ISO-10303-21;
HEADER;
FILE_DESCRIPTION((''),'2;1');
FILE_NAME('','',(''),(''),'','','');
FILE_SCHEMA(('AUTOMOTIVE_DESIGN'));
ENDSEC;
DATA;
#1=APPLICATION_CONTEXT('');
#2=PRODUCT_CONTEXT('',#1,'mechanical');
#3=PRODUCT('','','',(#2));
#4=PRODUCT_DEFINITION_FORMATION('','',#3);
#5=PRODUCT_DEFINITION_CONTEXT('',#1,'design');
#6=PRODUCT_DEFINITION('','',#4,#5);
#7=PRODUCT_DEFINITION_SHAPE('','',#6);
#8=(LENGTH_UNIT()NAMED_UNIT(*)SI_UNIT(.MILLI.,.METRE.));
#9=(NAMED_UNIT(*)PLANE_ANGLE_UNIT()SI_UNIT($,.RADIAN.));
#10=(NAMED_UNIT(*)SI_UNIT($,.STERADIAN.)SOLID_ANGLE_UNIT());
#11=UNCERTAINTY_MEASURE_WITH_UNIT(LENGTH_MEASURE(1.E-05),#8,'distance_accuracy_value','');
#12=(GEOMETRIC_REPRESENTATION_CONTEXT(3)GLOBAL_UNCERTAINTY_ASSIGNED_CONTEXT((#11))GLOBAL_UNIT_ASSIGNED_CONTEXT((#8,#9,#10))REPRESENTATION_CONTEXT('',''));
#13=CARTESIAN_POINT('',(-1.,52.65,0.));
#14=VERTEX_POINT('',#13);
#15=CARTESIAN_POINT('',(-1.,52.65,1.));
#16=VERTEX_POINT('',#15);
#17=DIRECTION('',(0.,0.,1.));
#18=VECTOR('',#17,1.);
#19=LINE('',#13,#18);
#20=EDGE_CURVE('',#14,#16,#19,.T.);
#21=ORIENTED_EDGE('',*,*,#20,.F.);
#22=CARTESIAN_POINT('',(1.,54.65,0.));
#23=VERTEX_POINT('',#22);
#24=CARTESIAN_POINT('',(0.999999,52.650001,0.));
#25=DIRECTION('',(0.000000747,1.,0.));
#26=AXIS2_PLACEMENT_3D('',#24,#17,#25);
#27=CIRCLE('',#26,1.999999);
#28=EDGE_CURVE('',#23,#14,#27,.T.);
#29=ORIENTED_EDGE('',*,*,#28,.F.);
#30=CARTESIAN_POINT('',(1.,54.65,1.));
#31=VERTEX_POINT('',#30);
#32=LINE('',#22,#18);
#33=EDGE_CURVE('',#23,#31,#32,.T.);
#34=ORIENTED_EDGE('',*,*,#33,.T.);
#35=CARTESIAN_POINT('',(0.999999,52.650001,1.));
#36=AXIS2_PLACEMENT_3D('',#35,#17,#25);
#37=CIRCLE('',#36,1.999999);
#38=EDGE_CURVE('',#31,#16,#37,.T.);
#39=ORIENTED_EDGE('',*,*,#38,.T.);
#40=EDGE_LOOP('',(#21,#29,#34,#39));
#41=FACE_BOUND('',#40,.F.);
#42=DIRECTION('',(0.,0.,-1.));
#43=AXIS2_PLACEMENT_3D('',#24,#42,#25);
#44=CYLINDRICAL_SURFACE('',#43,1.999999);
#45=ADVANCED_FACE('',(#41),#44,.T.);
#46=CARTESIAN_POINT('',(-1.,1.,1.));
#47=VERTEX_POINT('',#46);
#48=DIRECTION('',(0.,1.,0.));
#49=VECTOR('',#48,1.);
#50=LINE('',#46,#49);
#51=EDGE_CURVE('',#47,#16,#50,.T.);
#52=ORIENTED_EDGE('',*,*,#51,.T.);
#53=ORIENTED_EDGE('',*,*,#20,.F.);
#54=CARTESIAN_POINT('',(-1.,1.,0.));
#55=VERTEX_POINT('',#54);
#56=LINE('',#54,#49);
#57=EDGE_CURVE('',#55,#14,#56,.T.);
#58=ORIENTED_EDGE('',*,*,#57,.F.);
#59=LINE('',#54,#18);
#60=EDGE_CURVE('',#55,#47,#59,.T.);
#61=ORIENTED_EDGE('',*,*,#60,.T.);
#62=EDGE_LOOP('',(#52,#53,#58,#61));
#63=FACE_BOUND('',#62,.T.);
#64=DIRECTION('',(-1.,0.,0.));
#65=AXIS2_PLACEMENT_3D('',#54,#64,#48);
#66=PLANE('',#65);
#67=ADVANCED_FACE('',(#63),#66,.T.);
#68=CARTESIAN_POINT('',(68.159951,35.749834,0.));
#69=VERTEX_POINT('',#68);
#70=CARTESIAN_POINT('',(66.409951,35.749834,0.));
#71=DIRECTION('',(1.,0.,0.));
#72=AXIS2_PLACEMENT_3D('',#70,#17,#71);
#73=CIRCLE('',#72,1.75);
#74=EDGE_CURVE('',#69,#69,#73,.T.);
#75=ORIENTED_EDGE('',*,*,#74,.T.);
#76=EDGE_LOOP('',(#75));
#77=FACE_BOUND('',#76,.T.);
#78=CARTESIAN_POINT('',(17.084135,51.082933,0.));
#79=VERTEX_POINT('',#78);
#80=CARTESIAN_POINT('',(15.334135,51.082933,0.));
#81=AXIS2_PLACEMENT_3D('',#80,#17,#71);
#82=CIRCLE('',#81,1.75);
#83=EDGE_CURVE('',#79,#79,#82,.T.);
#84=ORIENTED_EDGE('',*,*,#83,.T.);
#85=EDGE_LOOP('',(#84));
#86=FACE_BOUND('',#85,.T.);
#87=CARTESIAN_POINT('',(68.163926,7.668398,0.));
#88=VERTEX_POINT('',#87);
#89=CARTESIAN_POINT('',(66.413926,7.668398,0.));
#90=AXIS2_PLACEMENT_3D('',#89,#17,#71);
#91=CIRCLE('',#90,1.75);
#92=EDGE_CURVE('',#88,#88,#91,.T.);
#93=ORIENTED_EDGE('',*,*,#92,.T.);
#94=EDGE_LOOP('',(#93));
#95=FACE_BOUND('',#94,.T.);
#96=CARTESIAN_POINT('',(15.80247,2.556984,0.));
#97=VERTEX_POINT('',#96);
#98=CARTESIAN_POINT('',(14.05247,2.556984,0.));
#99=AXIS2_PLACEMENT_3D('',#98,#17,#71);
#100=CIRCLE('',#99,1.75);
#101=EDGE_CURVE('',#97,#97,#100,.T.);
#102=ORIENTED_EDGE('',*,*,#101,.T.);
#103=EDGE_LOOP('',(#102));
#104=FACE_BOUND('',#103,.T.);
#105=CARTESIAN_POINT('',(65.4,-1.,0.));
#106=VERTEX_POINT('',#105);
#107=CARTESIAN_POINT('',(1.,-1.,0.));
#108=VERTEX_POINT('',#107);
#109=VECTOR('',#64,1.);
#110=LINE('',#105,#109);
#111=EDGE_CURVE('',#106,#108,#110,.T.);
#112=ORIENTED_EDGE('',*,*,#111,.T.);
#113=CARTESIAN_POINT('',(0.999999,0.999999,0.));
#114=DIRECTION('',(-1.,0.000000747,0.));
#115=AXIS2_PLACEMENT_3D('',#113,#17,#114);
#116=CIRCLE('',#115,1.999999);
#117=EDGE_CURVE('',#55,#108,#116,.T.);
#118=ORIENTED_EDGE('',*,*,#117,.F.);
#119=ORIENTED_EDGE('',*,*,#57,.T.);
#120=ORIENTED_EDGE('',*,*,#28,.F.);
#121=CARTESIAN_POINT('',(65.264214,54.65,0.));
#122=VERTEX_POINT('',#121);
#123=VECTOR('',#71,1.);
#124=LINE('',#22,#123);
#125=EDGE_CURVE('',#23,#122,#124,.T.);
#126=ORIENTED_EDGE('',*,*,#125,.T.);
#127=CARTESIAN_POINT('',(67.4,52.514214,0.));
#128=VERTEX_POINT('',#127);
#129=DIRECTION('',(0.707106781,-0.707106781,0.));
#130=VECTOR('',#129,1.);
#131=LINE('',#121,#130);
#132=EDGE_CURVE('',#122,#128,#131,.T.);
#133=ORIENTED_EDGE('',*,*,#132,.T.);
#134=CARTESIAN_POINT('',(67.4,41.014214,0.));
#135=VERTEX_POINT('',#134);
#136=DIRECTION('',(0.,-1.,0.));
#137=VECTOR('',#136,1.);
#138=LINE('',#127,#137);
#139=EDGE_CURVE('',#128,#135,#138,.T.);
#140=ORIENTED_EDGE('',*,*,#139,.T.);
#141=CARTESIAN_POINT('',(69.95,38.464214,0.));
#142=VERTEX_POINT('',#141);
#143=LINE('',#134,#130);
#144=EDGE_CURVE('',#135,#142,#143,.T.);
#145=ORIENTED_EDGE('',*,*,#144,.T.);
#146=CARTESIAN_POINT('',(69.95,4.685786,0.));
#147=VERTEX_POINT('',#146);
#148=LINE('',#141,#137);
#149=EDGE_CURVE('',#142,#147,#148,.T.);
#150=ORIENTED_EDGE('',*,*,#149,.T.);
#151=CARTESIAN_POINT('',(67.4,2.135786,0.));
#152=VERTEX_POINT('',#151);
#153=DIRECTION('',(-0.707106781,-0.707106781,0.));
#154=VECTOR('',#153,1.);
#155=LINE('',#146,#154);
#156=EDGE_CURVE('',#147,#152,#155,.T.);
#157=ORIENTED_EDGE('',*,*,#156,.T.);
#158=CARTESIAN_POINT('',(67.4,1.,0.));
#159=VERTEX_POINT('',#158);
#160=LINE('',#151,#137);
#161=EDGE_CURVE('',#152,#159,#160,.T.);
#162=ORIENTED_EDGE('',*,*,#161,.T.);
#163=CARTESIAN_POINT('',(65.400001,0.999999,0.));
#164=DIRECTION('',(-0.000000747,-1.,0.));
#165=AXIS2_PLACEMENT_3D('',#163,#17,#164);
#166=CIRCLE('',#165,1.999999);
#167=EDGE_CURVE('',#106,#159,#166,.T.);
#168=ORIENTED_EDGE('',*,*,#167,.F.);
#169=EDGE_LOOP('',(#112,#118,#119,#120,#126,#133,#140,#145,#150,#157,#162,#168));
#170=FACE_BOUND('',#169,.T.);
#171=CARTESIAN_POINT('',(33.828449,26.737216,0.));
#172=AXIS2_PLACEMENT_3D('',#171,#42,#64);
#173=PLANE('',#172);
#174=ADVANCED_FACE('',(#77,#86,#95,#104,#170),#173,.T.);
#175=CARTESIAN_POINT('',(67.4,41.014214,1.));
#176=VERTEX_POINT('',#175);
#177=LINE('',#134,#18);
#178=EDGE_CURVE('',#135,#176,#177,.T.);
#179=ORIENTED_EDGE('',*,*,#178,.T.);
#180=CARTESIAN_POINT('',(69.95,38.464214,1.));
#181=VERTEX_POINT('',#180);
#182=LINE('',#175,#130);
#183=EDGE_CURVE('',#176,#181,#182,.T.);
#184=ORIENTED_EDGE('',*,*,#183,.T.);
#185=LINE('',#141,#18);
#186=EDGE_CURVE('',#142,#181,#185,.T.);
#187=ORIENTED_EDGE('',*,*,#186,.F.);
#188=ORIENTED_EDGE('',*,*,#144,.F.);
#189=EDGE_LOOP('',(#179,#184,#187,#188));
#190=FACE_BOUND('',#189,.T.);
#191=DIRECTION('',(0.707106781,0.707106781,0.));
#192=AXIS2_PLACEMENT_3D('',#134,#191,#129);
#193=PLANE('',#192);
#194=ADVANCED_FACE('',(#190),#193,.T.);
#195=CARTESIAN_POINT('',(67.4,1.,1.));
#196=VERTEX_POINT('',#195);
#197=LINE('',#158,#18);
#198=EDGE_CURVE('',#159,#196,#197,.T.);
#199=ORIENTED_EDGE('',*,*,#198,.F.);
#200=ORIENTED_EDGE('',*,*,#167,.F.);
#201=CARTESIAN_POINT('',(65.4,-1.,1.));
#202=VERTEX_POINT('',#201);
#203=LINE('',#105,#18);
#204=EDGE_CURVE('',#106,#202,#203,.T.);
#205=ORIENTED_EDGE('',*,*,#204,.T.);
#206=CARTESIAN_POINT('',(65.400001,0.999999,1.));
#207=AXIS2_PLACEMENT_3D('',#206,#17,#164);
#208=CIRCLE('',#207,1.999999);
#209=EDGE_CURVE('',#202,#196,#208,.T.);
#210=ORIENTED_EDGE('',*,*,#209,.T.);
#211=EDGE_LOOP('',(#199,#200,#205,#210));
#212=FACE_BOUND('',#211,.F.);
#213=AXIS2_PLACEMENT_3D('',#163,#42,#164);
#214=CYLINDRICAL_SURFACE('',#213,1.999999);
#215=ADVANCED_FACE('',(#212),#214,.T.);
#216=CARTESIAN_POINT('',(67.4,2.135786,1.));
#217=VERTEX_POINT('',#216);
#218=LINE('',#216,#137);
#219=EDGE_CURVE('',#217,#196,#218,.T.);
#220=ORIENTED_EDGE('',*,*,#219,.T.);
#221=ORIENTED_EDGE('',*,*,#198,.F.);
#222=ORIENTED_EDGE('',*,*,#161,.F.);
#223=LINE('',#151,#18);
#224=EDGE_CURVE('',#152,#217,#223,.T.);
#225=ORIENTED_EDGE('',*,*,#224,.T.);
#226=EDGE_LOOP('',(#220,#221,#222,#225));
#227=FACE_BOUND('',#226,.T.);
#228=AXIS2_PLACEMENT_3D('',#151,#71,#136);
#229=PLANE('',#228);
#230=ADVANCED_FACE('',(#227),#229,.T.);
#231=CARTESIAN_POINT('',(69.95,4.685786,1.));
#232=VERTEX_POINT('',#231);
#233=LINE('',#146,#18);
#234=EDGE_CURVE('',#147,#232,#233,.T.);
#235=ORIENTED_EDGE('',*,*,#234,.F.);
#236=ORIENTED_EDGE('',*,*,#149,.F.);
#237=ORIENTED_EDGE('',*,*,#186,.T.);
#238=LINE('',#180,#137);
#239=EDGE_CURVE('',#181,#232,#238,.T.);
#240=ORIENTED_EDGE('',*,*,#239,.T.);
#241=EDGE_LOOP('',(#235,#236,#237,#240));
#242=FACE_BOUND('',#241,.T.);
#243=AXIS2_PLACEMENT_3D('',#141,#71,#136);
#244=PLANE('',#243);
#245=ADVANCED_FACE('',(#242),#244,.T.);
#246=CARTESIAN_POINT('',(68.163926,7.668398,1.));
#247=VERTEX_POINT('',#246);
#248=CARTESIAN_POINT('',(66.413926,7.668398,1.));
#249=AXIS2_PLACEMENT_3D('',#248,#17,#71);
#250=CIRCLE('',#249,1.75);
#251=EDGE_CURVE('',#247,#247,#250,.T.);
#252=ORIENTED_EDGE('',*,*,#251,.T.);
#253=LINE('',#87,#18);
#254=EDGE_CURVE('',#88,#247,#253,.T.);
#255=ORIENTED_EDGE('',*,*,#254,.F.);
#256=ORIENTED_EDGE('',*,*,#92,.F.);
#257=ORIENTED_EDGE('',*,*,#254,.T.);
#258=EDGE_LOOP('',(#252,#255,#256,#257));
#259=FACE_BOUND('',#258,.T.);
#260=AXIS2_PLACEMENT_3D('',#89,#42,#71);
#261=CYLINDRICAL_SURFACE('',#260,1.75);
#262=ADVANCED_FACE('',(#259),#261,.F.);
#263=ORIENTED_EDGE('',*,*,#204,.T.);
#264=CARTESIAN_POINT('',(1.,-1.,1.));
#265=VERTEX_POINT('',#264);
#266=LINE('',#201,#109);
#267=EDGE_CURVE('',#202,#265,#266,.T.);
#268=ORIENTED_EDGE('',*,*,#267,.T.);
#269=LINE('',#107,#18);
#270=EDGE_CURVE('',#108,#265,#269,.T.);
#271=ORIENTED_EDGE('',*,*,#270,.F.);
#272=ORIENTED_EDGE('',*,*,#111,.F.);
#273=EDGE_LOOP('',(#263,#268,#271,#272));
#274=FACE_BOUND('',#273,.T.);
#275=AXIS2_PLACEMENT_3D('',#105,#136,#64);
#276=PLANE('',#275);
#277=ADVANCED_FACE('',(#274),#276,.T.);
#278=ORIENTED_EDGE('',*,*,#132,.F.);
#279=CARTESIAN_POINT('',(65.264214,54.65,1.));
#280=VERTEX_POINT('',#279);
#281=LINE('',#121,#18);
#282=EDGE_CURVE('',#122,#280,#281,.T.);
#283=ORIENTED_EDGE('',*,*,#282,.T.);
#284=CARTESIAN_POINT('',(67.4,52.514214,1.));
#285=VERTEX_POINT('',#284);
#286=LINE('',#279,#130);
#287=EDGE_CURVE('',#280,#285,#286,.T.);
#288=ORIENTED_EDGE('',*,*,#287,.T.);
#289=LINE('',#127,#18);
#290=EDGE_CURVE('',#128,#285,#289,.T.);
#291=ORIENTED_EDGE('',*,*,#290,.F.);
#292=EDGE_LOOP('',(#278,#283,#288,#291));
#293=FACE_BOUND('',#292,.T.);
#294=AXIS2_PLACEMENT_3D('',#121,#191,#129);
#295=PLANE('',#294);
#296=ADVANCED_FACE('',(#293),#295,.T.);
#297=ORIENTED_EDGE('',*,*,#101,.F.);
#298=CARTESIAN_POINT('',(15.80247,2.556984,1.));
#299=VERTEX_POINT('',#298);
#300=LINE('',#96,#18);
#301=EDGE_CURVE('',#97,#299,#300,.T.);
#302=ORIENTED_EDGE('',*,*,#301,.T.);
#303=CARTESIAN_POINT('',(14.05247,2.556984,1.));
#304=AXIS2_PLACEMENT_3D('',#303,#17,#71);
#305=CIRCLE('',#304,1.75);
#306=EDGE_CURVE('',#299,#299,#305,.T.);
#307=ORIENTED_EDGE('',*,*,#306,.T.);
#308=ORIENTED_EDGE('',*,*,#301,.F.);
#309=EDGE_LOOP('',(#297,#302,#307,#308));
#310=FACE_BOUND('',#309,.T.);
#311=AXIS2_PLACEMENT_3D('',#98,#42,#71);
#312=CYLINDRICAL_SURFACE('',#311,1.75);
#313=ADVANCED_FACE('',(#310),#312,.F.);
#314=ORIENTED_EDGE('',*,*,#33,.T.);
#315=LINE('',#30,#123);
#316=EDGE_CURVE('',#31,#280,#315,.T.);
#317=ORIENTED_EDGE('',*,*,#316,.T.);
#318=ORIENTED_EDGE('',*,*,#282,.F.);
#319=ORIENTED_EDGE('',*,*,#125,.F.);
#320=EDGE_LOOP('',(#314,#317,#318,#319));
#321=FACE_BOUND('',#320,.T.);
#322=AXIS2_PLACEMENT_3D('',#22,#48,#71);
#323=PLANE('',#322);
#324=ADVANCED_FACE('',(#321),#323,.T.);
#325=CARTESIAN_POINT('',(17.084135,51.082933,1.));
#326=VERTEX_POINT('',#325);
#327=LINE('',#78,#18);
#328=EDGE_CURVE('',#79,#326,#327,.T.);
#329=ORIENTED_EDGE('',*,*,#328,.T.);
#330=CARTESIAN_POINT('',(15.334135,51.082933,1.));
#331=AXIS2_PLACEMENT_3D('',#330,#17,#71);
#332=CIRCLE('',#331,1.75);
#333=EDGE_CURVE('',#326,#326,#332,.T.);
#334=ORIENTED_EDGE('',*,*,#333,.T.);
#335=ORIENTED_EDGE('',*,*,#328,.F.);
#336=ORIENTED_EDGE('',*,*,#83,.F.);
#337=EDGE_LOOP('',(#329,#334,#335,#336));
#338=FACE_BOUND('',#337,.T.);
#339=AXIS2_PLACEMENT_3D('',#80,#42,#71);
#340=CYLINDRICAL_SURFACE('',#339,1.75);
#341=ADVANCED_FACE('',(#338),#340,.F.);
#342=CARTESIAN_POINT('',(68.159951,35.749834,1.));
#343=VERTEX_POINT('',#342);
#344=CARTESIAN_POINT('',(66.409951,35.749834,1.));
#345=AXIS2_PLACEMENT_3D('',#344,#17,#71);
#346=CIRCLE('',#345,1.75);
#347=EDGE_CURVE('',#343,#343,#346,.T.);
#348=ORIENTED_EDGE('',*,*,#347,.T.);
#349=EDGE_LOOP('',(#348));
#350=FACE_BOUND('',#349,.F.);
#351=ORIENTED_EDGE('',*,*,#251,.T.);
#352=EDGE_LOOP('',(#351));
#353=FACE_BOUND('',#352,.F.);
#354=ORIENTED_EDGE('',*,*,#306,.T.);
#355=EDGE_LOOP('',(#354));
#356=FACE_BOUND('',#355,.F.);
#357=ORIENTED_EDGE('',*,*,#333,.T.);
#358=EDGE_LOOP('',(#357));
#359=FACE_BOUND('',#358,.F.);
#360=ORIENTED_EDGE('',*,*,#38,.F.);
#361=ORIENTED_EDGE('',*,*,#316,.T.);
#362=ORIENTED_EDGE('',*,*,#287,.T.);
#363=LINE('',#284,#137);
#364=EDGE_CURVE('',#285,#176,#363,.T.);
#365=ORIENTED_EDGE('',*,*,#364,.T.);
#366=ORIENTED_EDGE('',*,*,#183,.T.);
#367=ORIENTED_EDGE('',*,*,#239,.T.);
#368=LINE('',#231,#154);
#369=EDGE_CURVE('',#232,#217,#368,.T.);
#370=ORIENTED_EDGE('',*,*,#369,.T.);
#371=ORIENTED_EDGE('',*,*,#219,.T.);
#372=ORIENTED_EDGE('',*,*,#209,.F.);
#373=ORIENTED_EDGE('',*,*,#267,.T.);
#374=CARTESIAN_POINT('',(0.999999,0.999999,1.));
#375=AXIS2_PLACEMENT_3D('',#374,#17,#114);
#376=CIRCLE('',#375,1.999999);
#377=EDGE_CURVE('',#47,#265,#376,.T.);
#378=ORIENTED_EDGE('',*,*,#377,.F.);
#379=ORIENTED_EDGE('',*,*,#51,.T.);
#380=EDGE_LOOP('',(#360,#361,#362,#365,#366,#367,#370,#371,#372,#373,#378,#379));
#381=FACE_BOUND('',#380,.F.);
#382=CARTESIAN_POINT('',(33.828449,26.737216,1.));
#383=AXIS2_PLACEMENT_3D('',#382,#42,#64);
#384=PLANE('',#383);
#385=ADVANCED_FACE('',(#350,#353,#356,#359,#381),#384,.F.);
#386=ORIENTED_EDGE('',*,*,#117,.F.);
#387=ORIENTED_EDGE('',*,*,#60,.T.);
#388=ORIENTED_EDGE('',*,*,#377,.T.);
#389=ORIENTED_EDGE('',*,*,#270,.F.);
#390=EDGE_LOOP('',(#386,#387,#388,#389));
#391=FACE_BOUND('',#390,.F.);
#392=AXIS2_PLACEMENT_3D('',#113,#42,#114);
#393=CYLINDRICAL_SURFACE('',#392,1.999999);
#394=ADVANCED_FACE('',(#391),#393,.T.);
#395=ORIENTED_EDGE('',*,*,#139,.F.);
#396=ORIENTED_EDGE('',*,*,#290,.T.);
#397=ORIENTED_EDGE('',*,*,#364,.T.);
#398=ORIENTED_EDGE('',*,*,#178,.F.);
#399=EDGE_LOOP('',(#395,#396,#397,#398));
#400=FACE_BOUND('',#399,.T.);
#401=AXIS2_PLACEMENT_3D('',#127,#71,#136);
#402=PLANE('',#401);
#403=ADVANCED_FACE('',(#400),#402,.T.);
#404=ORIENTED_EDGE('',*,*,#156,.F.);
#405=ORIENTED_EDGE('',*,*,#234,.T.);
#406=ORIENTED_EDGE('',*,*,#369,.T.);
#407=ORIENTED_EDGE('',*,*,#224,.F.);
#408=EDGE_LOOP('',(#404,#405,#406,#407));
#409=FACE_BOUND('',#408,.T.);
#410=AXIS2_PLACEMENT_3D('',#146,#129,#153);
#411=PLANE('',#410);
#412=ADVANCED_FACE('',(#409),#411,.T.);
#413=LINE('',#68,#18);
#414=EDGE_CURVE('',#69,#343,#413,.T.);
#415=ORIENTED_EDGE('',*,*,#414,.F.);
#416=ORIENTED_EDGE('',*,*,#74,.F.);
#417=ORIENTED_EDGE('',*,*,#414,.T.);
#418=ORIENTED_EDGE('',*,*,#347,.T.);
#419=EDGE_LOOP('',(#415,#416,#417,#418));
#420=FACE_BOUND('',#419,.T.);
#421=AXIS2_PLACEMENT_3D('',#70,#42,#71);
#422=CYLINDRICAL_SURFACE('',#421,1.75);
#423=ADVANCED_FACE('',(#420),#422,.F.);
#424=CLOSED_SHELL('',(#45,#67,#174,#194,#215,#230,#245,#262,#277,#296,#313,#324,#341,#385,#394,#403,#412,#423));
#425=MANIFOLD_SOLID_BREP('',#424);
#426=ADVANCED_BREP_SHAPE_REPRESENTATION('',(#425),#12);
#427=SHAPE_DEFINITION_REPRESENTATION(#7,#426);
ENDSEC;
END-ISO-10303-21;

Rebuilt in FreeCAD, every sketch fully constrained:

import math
import FreeCAD as App
import Part
import Sketcher

V = App.Vector

doc = App.newDocument("Part")
body = doc.addObject("PartDesign::Body", "Body")

# Sketch on XY plane
sketch1 = body.newObject("Sketcher::SketchObject", "Sketch")
sketch1.AttachmentSupport = (doc.getObject("XY_Plane"), [""])
sketch1.MapMode = "FlatFace"
sketch1.addGeometry([
    Part.LineSegment(V(67.4, 52.5, 0), V(65.3, 54.6, 0)),  # 0
    Part.LineSegment(V(65.3, 54.6, 0), V(1, 54.6, 0)),  # 1
    Part.ArcOfCircle(Part.Circle(V(1, 52.7, 0), V(0, 0, 1), 2), math.radians(90), math.radians(180)),  # 2
    Part.LineSegment(V(-1, 52.6, 0), V(-1, 1, 0)),  # 3
    Part.ArcOfCircle(Part.Circle(V(1, 1, 0), V(0, 0, 1), 2), math.radians(180), math.radians(270)),  # 4
    Part.LineSegment(V(1, -1, 0), V(65.4, -1, 0)),  # 5
    Part.ArcOfCircle(Part.Circle(V(65.4, 1, 0), V(0, 0, 1), 2), math.radians(-90), math.radians(0)),  # 6
    Part.LineSegment(V(67.4, 1, 0), V(67.4, 2.1, 0)),  # 7
    Part.LineSegment(V(67.4, 2.1, 0), V(70, 4.7, 0)),  # 8
    Part.LineSegment(V(70, 4.7, 0), V(70, 38.5, 0)),  # 9
    Part.LineSegment(V(70, 38.5, 0), V(67.4, 41, 0)),  # 10
    Part.LineSegment(V(67.4, 41, 0), V(67.4, 52.5, 0)),  # 11
    Part.Circle(V(66.4, 7.7, 0), V(0, 0, 1), 1.8),  # 12
    Part.Circle(V(14.1, 2.6, 0), V(0, 0, 1), 1.8),  # 13
    Part.Circle(V(66.4, 35.7, 0), V(0, 0, 1), 1.8),  # 14
    Part.Circle(V(15.3, 51.1, 0), V(0, 0, 1), 1.8),  # 15
], False)
sketch1.addConstraint([
    Sketcher.Constraint("Coincident", 0, 2, 1, 1),
    Sketcher.Constraint("Tangent", 1, 2, 2, 1),
    Sketcher.Constraint("Tangent", 2, 2, 3, 1),
    Sketcher.Constraint("Tangent", 3, 2, 4, 1),
    Sketcher.Constraint("Tangent", 4, 2, 5, 1),
    Sketcher.Constraint("Tangent", 5, 2, 6, 1),
    Sketcher.Constraint("Tangent", 6, 2, 7, 1),
    Sketcher.Constraint("Coincident", 7, 2, 8, 1),
    Sketcher.Constraint("Coincident", 8, 2, 9, 1),
    Sketcher.Constraint("Coincident", 9, 2, 10, 1),
    Sketcher.Constraint("Coincident", 10, 2, 11, 1),
    Sketcher.Constraint("Coincident", 11, 2, 0, 1),
    Sketcher.Constraint("Horizontal", 1),
    Sketcher.Constraint("Vertical", 3),
    Sketcher.Constraint("Horizontal", 5),
    Sketcher.Constraint("Vertical", 7),
    Sketcher.Constraint("Vertical", 9),
    Sketcher.Constraint("Vertical", 11),
    Sketcher.Constraint("Equal", 2, 4),
    Sketcher.Constraint("Equal", 4, 6),
    Sketcher.Constraint("Equal", 12, 13),
    Sketcher.Constraint("Equal", 13, 14),
    Sketcher.Constraint("Equal", 14, 15),
    Sketcher.Constraint("Symmetric", 3, 2, 4, 2, -1, 1),
    Sketcher.Constraint("Perpendicular", 0, 8),
    Sketcher.Constraint("Perpendicular", 8, 10),
    Sketcher.Constraint("Vertical", 7, 2, 10, 2),
    Sketcher.Constraint("Equal", 8, 10),
    Sketcher.Constraint("Radius", 2, 1.999999),
    Sketcher.Constraint("Diameter", 12, 3.5),
    Sketcher.Constraint("DistanceX", 5, 1, 5, 2, 64.4),
    Sketcher.Constraint("DistanceY", 11, 1, 11, 2, 11.5),
    Sketcher.Constraint("DistanceY", 3, 2, 3, 1, 51.65),
    Sketcher.Constraint("DistanceX", -1, 1, 8, 2, 69.95),
    Sketcher.Constraint("DistanceY", 6, 3, 12, 3, 6.668399),
    Sketcher.Constraint("DistanceY", 14, 3, 15, 3, 15.333099),
    Sketcher.Constraint("DistanceX", 1, 2, 1, 1, 64.264214),
    Sketcher.Constraint("DistanceY", 7, 1, 7, 2, 1.135786),
    Sketcher.Constraint("DistanceX", -1, 1, 13, 3, 14.05247),
    Sketcher.Constraint("DistanceX", -1, 1, 14, 3, 66.409951),
    Sketcher.Constraint("DistanceY", 13, 3, 14, 3, 33.19285),
    Sketcher.Constraint("DistanceY", 15, 3, 2, 3, 1.567068),
    Sketcher.Constraint("DistanceX", 15, 3, 12, 3, 51.079791),
    Sketcher.Constraint("DistanceX", 15, 3, 0, 2, 49.930079),
])
pad1 = body.newObject("PartDesign::Pad", "Pad")
pad1.Profile = sketch1
pad1.Length = 1

doc.recompute()
